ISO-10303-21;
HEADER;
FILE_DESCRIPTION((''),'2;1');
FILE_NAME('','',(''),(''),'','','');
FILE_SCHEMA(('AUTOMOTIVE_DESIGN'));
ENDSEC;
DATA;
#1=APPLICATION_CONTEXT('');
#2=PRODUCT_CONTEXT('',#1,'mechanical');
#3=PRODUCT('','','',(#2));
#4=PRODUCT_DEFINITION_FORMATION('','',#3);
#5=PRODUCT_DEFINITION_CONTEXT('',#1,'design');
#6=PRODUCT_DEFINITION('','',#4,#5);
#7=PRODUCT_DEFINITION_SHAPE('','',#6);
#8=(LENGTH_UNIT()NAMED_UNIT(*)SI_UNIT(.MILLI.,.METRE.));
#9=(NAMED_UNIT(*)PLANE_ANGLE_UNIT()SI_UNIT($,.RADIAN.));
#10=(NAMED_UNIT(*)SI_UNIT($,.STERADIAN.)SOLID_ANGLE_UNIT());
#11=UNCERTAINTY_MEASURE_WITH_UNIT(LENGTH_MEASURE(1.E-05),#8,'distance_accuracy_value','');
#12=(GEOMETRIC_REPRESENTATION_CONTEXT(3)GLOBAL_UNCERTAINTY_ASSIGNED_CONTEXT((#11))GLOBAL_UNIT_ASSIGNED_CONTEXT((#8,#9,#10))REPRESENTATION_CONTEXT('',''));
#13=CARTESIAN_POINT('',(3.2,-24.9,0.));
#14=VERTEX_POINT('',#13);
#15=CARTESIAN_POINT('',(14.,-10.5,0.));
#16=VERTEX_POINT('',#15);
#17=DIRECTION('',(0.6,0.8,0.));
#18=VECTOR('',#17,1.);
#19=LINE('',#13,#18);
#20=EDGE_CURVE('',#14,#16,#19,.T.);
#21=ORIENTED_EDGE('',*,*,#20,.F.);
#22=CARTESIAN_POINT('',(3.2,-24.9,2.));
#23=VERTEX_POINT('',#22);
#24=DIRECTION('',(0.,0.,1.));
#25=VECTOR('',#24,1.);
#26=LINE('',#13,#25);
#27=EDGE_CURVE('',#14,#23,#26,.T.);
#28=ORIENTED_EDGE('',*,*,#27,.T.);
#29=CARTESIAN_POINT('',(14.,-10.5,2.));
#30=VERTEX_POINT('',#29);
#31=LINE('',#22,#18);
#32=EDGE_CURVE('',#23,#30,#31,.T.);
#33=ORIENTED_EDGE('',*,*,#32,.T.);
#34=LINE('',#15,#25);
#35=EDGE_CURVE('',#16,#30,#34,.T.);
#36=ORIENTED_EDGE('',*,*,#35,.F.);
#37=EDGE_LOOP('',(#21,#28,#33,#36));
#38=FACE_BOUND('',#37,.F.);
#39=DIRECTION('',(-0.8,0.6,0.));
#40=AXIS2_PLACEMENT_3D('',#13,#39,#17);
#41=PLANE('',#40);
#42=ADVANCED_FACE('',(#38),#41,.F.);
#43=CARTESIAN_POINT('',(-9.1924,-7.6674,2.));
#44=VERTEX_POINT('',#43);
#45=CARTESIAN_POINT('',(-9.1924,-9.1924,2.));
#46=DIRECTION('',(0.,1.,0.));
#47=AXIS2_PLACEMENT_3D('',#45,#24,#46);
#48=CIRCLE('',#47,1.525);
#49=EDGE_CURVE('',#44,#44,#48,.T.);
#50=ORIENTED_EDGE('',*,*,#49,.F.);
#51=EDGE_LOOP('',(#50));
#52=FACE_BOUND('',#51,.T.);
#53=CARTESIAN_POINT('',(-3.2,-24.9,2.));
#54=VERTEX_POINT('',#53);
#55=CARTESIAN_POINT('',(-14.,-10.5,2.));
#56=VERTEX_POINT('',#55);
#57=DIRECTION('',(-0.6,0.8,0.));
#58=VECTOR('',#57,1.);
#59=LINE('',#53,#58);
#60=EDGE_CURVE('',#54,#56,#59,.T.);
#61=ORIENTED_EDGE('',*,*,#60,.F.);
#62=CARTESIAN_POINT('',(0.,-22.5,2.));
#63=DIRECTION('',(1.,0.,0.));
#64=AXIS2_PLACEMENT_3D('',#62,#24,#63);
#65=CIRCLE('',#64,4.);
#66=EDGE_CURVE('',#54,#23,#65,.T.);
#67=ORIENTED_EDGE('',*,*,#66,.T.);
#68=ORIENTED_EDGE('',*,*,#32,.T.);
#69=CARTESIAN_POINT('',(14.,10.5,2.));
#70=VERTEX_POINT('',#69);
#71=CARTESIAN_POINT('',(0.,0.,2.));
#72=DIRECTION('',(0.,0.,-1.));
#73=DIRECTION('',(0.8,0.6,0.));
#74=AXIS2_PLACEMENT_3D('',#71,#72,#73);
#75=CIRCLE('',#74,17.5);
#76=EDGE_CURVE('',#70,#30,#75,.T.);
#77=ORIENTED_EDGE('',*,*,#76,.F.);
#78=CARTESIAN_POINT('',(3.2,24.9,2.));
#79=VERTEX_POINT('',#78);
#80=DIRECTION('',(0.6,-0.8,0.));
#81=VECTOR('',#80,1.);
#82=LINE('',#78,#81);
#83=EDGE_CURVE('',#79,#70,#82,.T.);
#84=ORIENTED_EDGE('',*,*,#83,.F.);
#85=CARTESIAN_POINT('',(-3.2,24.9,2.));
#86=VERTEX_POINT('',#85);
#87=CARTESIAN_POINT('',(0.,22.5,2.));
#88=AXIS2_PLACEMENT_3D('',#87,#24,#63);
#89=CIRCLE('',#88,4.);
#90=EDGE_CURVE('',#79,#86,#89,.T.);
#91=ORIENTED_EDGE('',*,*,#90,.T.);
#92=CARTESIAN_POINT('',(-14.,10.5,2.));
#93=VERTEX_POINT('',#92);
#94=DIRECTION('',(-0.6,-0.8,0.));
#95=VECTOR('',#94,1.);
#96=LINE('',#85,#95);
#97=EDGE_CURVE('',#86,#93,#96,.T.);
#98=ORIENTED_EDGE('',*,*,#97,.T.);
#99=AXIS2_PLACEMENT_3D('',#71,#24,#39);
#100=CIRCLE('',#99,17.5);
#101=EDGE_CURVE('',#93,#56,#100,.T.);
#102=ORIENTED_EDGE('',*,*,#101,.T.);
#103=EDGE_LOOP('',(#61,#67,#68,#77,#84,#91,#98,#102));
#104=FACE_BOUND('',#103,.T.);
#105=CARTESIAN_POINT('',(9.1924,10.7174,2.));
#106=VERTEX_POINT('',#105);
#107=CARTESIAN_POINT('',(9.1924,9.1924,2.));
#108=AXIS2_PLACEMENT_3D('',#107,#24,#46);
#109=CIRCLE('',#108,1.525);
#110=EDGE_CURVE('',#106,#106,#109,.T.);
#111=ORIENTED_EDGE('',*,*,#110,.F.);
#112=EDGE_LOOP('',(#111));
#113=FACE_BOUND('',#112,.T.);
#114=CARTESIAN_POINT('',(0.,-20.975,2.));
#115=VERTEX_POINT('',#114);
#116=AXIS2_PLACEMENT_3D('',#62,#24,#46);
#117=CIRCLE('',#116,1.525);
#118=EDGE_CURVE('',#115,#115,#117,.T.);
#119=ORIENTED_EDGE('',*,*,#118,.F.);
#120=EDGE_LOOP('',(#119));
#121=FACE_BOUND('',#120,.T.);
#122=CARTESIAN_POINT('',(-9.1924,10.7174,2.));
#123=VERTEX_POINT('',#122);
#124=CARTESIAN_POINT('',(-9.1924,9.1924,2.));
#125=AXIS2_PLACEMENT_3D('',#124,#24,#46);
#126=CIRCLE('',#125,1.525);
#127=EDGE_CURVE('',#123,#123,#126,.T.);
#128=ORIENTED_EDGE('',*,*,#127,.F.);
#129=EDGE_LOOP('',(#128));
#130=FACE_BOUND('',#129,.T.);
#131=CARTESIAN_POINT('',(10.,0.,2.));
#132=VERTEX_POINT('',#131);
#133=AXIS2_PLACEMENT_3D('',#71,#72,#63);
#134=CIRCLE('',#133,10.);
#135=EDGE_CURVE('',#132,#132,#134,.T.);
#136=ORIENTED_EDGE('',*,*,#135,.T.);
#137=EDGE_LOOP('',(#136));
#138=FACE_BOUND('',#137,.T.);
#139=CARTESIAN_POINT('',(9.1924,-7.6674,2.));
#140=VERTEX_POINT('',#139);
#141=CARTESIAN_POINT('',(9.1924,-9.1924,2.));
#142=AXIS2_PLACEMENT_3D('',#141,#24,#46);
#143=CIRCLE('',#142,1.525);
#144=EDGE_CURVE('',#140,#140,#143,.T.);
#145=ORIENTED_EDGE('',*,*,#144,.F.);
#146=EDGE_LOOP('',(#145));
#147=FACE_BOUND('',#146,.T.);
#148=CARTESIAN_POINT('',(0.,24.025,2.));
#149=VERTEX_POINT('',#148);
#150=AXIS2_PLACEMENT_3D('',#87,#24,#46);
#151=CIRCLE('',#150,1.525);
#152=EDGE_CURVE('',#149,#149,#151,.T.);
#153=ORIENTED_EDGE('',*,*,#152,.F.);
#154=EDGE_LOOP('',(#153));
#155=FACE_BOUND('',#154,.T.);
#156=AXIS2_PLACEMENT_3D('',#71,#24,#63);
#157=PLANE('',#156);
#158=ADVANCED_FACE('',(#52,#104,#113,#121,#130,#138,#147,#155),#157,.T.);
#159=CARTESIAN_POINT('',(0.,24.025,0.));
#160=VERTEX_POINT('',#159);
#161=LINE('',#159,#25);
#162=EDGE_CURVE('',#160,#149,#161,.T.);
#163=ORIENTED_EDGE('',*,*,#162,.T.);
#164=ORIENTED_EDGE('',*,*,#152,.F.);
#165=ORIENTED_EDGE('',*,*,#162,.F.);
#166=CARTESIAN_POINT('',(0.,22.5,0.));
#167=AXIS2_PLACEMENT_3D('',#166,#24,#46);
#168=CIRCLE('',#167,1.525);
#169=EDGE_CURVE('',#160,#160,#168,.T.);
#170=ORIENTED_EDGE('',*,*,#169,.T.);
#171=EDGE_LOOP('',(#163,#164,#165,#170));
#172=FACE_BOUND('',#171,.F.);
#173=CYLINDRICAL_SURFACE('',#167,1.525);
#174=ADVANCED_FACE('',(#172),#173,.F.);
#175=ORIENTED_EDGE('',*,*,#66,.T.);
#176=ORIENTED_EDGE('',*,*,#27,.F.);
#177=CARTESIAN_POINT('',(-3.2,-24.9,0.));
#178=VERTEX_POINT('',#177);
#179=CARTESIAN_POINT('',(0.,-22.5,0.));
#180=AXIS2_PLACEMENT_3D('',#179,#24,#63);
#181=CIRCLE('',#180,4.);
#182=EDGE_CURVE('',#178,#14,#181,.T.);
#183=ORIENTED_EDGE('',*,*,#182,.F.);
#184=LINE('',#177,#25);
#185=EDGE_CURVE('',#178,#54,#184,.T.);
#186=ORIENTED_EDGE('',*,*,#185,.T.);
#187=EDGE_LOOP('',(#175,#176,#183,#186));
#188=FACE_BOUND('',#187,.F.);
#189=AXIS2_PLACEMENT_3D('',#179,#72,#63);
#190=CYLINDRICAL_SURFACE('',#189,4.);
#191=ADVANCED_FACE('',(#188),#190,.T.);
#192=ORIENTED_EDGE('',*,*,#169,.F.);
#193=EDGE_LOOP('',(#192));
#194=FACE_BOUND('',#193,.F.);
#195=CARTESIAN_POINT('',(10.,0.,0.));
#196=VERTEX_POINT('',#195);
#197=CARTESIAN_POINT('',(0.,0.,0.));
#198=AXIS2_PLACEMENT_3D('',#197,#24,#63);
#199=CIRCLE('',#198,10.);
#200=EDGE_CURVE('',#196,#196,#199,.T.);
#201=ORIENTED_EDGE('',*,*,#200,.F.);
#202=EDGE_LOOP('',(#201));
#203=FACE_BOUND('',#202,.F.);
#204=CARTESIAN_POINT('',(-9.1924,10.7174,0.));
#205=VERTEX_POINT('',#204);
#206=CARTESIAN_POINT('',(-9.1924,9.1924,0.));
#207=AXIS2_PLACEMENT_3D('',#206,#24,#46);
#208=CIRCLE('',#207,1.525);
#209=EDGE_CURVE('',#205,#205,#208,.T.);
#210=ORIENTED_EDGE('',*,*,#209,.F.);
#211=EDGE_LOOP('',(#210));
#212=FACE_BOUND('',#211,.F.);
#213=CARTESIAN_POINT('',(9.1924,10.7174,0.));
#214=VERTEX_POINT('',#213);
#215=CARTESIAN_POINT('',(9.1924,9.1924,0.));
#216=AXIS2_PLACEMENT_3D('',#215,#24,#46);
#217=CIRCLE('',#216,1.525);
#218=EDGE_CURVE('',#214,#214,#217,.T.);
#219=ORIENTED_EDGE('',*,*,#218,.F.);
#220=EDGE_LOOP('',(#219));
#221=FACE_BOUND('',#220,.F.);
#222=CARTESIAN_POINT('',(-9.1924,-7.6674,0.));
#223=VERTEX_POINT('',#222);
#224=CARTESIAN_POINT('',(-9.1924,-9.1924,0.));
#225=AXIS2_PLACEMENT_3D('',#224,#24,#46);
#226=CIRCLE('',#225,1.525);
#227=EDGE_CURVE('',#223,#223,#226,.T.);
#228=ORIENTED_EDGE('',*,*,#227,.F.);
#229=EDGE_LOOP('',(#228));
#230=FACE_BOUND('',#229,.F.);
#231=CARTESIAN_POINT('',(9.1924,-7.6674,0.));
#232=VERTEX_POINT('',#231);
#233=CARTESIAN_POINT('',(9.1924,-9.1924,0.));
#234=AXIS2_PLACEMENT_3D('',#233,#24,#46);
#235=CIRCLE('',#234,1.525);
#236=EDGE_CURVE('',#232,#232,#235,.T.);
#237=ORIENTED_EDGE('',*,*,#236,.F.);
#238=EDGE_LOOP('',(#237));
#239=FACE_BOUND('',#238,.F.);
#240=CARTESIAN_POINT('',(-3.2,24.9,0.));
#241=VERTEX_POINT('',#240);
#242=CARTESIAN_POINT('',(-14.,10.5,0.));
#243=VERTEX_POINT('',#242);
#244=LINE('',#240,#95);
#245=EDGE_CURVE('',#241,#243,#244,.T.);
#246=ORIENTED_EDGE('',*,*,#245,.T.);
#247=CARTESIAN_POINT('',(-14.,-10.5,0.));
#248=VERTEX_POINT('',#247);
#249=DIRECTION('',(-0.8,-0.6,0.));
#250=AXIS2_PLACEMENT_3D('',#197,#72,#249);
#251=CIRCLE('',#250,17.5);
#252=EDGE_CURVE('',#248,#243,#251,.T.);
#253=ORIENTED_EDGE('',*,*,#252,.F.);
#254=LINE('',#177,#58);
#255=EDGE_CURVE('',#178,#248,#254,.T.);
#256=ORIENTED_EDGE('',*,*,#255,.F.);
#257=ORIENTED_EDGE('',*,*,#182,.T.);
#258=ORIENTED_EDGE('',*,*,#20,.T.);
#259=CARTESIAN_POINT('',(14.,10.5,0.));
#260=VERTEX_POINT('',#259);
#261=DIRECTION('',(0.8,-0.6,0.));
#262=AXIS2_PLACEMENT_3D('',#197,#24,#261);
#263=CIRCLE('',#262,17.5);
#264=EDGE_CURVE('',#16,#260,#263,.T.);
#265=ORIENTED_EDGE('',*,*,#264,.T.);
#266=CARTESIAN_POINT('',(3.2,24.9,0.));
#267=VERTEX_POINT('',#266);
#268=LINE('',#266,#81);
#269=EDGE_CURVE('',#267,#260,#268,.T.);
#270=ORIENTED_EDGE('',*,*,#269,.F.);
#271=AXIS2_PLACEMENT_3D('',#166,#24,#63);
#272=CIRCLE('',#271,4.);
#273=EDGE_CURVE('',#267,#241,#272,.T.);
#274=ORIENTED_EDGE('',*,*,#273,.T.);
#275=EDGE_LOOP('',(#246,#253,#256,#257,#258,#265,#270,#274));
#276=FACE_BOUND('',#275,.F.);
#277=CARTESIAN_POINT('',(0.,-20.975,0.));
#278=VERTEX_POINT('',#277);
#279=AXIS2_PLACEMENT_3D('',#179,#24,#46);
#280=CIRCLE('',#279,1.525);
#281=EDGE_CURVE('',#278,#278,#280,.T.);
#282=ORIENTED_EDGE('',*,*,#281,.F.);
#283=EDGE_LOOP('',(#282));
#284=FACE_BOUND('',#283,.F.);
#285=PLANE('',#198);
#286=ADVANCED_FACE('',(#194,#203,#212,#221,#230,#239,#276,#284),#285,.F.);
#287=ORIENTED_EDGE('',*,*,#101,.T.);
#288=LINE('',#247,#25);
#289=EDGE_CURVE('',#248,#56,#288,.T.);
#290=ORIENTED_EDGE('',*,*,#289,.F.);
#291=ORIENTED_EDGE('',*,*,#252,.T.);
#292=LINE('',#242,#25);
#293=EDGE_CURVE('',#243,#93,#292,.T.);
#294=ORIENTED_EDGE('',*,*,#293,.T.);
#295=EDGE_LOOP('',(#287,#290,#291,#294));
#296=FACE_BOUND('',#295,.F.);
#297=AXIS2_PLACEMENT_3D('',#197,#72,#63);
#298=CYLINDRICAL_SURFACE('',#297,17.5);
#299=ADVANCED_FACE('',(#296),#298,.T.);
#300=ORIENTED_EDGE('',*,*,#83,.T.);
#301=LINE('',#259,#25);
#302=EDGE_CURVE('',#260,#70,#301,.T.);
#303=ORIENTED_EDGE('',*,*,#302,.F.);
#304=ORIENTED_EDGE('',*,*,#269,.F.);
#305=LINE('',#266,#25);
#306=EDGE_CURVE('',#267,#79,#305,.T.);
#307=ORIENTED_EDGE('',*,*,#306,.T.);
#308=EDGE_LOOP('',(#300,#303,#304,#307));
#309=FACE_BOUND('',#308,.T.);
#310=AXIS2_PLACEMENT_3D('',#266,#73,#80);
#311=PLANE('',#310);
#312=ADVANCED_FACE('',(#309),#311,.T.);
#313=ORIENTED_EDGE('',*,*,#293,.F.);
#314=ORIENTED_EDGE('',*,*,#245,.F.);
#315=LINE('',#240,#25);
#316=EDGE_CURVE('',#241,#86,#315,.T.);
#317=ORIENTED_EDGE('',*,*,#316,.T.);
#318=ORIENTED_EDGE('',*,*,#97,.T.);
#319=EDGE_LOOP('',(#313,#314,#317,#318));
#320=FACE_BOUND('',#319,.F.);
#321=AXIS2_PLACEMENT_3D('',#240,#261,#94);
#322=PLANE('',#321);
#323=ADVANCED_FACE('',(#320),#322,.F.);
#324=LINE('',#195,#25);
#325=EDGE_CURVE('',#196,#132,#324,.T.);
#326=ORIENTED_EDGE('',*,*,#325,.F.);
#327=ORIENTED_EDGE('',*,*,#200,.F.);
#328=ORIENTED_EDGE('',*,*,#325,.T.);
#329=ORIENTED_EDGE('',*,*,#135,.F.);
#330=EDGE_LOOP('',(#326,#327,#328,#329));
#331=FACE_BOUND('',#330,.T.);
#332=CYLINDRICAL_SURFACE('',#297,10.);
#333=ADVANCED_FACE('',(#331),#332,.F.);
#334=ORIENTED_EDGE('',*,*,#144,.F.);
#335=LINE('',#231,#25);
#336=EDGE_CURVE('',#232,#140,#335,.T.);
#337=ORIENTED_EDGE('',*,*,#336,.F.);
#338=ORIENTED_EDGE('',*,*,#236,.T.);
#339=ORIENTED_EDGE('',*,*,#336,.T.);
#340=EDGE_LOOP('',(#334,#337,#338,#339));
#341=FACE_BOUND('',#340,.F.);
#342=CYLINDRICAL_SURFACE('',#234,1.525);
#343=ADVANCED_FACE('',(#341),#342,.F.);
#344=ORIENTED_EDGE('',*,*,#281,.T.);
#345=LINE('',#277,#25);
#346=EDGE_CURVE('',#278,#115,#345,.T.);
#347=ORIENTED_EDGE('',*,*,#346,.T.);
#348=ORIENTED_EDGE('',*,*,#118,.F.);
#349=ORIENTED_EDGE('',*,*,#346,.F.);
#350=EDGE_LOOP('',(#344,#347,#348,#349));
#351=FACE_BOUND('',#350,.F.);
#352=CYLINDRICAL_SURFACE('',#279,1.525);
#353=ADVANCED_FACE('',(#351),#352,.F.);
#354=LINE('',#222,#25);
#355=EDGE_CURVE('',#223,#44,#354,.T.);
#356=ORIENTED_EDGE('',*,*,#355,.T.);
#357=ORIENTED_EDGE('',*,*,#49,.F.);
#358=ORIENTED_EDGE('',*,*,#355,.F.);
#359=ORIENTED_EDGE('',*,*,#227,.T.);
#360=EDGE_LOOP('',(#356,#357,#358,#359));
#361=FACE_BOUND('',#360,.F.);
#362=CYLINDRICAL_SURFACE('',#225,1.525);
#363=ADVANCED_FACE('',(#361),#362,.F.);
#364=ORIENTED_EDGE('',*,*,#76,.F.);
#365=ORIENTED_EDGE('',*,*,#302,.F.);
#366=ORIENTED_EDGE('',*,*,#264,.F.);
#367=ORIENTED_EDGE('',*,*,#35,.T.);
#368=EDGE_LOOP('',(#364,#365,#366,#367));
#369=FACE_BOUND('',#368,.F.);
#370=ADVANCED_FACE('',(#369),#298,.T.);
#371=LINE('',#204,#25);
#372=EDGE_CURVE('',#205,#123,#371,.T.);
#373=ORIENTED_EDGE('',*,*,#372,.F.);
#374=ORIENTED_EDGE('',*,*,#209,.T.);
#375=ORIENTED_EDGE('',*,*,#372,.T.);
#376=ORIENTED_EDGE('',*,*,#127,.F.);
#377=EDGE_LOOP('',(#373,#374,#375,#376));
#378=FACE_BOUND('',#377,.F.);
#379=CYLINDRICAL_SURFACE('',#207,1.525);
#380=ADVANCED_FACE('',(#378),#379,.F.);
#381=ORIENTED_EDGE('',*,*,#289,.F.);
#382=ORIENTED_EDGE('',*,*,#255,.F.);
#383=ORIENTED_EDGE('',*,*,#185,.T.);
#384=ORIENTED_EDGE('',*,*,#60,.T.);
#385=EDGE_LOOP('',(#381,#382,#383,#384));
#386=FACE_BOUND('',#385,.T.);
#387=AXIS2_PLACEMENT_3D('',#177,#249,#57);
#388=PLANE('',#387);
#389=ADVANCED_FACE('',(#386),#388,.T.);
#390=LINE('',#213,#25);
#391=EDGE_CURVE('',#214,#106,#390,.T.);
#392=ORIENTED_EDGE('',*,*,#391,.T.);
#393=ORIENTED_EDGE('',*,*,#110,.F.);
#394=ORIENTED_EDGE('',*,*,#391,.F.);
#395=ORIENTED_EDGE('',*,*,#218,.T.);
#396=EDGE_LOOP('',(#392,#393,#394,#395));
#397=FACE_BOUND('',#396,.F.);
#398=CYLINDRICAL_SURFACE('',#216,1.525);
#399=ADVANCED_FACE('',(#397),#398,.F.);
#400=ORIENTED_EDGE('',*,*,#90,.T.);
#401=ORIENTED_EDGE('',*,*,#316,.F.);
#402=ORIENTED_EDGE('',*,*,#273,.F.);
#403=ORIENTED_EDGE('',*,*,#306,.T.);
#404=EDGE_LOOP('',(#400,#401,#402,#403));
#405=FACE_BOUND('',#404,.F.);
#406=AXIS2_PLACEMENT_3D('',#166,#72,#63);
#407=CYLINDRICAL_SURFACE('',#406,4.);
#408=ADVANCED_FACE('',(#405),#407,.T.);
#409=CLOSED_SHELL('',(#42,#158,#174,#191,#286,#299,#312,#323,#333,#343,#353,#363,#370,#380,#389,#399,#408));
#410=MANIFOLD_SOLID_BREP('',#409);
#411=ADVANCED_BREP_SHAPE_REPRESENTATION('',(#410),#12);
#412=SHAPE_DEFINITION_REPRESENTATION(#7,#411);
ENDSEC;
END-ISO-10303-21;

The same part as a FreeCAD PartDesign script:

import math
import FreeCAD as App
import Part
import Sketcher

V = App.Vector

doc = App.newDocument("Part")
body = doc.addObject("PartDesign::Body", "Body")

# Sketch on XY plane
sketch1 = body.newObject("Sketcher::SketchObject", "Sketch")
sketch1.AttachmentSupport = (doc.getObject("XY_Plane"), [""])
sketch1.MapMode = "FlatFace"
sketch1.addGeometry(Part.ArcOfCircle(Part.Circle(V(0, 0, 0), V(0, 0, 1), 17.5), math.radians(-36.869898), math.radians(36.869898)), False)
sketch1.addGeometry(Part.LineSegment(V(14, 10.5, 0), V(3.2, 24.9, 0)), False)
sketch1.addGeometry(Part.ArcOfCircle(Part.Circle(V(0, 22.5, 0), V(0, 0, 1), 4), math.radians(36.869898), math.radians(143.130102)), False)
sketch1.addGeometry(Part.LineSegment(V(-3.2, 24.9, 0), V(-14, 10.5, 0)), False)
sketch1.addGeometry(Part.ArcOfCircle(Part.Circle(V(0, 0, 0), V(0, 0, 1), 17.5), math.radians(143.130102), math.radians(216.869898)), False)
sketch1.addGeometry(Part.LineSegment(V(-14, -10.5, 0), V(-3.2, -24.9, 0)), False)
sketch1.addGeometry(Part.ArcOfCircle(Part.Circle(V(0, -22.5, 0), V(0, 0, 1), 4), math.radians(-143.130102), math.radians(-36.869898)), False)
sketch1.addGeometry(Part.LineSegment(V(3.2, -24.9, 0), V(14, -10.5, 0)), False)
sketch1.addGeometry(Part.Circle(V(0, 0, 0), V(0, 0, 1), 10), False)
sketch1.addConstraint(Sketcher.Constraint("Tangent", 0, 2, 1, 1))
sketch1.addConstraint(Sketcher.Constraint("Tangent", 1, 2, 2, 1))
sketch1.addConstraint(Sketcher.Constraint("Tangent", 2, 2, 3, 1))
sketch1.addConstraint(Sketcher.Constraint("Tangent", 3, 2, 4, 1))
sketch1.addConstraint(Sketcher.Constraint("Tangent", 4, 2, 5, 1))
sketch1.addConstraint(Sketcher.Constraint("Tangent", 5, 2, 6, 1))
sketch1.addConstraint(Sketcher.Constraint("Tangent", 6, 2, 7, 1))
sketch1.addConstraint(Sketcher.Constraint("Tangent", 7, 2, 0, 1))
sketch1.addConstraint(Sketcher.Constraint("Coincident", 0, 3, -1, 1))
sketch1.addConstraint(Sketcher.Constraint("Coincident", 4, 3, -1, 1))
sketch1.addConstraint(Sketcher.Constraint("Coincident", 8, 3, -1, 1))
sketch1.addConstraint(Sketcher.Constraint("Equal", 0, 4))
sketch1.addConstraint(Sketcher.Constraint("Equal", 2, 6))
sketch1.addConstraint(Sketcher.Constraint("Symmetric", 2, 3, 6, 3, -1, 1))
sketch1.addConstraint(Sketcher.Constraint("PointOnObject", 2, 3, -2))
sketch1.addConstraint(Sketcher.Constraint("Diameter", 8, 20.0))
sketch1.addConstraint(Sketcher.Constraint("Radius", 2, 4.0))
sketch1.addConstraint(Sketcher.Constraint("Radius", 0, 17.5))
sketch1.addConstraint(Sketcher.Constraint("DistanceY", 6, 3, 2, 3, 45.0))
pad1 = body.newObject("PartDesign::Pad", "Pad")
pad1.Profile = sketch1
pad1.Length = 2

# Sketch on XY plane
sketch2 = body.newObject("Sketcher::SketchObject", "Sketch001")
sketch2.AttachmentSupport = (doc.getObject("XY_Plane"), [""])
sketch2.MapMode = "FlatFace"
sketch2.addGeometry(Part.Circle(V(9.1924, -9.1924, 0), V(0, 0, 1), 1.525), False)
sketch2.addGeometry(Part.Circle(V(-9.1924, -9.1924, 0), V(0, 0, 1), 1.525), False)
sketch2.addGeometry(Part.Circle(V(9.1924, 9.1924, 0), V(0, 0, 1), 1.525), False)
sketch2.addGeometry(Part.Circle(V(-9.1924, 9.1924, 0), V(0, 0, 1), 1.525), False)
sketch2.addGeometry(Part.Circle(V(0, 22.5, 0), V(0, 0, 1), 1.525), False)
sketch2.addGeometry(Part.Circle(V(0, -22.5, 0), V(0, 0, 1), 1.525), False)
sketch2.addConstraint(Sketcher.Constraint("Equal", 0, 1))
sketch2.addConstraint(Sketcher.Constraint("Equal", 1, 2))
sketch2.addConstraint(Sketcher.Constraint("Equal", 2, 3))
sketch2.addConstraint(Sketcher.Constraint("Equal", 3, 4))
sketch2.addConstraint(Sketcher.Constraint("Equal", 4, 5))
sketch2.addConstraint(Sketcher.Constraint("Symmetric", 1, 3, 2, 3, -1, 1))
sketch2.addConstraint(Sketcher.Constraint("Symmetric", 0, 3, 3, 3, -1, 1))
sketch2.addConstraint(Sketcher.Constraint("Symmetric", 4, 3, 5, 3, -1, 1))
sketch2.addConstraint(Sketcher.Constraint("Symmetric", 0, 3, 1, 3, -2))
sketch2.addConstraint(Sketcher.Constraint("PointOnObject", 4, 3, -2))
sketch2.addConstraint(Sketcher.Constraint("Diameter", 0, 3.05))
sketch2.addConstraint(Sketcher.Constraint("DistanceY", 5, 3, 4, 3, 45.0))
sketch2.addConstraint(Sketcher.Constraint("DistanceX", -1, 1, 0, 3, 9.1924))
sketch2.addConstraint(Sketcher.Constraint("DistanceY", 0, 3, -1, 1, 9.1924))
doc.recompute()
hole = body.newObject("PartDesign::Hole", "Hole")
hole.Profile = sketch2
hole.ThreadType = "None"
hole.Diameter = 3.05
hole.DepthType = "ThroughAll"
hole.Reversed = True

doc.recompute()
